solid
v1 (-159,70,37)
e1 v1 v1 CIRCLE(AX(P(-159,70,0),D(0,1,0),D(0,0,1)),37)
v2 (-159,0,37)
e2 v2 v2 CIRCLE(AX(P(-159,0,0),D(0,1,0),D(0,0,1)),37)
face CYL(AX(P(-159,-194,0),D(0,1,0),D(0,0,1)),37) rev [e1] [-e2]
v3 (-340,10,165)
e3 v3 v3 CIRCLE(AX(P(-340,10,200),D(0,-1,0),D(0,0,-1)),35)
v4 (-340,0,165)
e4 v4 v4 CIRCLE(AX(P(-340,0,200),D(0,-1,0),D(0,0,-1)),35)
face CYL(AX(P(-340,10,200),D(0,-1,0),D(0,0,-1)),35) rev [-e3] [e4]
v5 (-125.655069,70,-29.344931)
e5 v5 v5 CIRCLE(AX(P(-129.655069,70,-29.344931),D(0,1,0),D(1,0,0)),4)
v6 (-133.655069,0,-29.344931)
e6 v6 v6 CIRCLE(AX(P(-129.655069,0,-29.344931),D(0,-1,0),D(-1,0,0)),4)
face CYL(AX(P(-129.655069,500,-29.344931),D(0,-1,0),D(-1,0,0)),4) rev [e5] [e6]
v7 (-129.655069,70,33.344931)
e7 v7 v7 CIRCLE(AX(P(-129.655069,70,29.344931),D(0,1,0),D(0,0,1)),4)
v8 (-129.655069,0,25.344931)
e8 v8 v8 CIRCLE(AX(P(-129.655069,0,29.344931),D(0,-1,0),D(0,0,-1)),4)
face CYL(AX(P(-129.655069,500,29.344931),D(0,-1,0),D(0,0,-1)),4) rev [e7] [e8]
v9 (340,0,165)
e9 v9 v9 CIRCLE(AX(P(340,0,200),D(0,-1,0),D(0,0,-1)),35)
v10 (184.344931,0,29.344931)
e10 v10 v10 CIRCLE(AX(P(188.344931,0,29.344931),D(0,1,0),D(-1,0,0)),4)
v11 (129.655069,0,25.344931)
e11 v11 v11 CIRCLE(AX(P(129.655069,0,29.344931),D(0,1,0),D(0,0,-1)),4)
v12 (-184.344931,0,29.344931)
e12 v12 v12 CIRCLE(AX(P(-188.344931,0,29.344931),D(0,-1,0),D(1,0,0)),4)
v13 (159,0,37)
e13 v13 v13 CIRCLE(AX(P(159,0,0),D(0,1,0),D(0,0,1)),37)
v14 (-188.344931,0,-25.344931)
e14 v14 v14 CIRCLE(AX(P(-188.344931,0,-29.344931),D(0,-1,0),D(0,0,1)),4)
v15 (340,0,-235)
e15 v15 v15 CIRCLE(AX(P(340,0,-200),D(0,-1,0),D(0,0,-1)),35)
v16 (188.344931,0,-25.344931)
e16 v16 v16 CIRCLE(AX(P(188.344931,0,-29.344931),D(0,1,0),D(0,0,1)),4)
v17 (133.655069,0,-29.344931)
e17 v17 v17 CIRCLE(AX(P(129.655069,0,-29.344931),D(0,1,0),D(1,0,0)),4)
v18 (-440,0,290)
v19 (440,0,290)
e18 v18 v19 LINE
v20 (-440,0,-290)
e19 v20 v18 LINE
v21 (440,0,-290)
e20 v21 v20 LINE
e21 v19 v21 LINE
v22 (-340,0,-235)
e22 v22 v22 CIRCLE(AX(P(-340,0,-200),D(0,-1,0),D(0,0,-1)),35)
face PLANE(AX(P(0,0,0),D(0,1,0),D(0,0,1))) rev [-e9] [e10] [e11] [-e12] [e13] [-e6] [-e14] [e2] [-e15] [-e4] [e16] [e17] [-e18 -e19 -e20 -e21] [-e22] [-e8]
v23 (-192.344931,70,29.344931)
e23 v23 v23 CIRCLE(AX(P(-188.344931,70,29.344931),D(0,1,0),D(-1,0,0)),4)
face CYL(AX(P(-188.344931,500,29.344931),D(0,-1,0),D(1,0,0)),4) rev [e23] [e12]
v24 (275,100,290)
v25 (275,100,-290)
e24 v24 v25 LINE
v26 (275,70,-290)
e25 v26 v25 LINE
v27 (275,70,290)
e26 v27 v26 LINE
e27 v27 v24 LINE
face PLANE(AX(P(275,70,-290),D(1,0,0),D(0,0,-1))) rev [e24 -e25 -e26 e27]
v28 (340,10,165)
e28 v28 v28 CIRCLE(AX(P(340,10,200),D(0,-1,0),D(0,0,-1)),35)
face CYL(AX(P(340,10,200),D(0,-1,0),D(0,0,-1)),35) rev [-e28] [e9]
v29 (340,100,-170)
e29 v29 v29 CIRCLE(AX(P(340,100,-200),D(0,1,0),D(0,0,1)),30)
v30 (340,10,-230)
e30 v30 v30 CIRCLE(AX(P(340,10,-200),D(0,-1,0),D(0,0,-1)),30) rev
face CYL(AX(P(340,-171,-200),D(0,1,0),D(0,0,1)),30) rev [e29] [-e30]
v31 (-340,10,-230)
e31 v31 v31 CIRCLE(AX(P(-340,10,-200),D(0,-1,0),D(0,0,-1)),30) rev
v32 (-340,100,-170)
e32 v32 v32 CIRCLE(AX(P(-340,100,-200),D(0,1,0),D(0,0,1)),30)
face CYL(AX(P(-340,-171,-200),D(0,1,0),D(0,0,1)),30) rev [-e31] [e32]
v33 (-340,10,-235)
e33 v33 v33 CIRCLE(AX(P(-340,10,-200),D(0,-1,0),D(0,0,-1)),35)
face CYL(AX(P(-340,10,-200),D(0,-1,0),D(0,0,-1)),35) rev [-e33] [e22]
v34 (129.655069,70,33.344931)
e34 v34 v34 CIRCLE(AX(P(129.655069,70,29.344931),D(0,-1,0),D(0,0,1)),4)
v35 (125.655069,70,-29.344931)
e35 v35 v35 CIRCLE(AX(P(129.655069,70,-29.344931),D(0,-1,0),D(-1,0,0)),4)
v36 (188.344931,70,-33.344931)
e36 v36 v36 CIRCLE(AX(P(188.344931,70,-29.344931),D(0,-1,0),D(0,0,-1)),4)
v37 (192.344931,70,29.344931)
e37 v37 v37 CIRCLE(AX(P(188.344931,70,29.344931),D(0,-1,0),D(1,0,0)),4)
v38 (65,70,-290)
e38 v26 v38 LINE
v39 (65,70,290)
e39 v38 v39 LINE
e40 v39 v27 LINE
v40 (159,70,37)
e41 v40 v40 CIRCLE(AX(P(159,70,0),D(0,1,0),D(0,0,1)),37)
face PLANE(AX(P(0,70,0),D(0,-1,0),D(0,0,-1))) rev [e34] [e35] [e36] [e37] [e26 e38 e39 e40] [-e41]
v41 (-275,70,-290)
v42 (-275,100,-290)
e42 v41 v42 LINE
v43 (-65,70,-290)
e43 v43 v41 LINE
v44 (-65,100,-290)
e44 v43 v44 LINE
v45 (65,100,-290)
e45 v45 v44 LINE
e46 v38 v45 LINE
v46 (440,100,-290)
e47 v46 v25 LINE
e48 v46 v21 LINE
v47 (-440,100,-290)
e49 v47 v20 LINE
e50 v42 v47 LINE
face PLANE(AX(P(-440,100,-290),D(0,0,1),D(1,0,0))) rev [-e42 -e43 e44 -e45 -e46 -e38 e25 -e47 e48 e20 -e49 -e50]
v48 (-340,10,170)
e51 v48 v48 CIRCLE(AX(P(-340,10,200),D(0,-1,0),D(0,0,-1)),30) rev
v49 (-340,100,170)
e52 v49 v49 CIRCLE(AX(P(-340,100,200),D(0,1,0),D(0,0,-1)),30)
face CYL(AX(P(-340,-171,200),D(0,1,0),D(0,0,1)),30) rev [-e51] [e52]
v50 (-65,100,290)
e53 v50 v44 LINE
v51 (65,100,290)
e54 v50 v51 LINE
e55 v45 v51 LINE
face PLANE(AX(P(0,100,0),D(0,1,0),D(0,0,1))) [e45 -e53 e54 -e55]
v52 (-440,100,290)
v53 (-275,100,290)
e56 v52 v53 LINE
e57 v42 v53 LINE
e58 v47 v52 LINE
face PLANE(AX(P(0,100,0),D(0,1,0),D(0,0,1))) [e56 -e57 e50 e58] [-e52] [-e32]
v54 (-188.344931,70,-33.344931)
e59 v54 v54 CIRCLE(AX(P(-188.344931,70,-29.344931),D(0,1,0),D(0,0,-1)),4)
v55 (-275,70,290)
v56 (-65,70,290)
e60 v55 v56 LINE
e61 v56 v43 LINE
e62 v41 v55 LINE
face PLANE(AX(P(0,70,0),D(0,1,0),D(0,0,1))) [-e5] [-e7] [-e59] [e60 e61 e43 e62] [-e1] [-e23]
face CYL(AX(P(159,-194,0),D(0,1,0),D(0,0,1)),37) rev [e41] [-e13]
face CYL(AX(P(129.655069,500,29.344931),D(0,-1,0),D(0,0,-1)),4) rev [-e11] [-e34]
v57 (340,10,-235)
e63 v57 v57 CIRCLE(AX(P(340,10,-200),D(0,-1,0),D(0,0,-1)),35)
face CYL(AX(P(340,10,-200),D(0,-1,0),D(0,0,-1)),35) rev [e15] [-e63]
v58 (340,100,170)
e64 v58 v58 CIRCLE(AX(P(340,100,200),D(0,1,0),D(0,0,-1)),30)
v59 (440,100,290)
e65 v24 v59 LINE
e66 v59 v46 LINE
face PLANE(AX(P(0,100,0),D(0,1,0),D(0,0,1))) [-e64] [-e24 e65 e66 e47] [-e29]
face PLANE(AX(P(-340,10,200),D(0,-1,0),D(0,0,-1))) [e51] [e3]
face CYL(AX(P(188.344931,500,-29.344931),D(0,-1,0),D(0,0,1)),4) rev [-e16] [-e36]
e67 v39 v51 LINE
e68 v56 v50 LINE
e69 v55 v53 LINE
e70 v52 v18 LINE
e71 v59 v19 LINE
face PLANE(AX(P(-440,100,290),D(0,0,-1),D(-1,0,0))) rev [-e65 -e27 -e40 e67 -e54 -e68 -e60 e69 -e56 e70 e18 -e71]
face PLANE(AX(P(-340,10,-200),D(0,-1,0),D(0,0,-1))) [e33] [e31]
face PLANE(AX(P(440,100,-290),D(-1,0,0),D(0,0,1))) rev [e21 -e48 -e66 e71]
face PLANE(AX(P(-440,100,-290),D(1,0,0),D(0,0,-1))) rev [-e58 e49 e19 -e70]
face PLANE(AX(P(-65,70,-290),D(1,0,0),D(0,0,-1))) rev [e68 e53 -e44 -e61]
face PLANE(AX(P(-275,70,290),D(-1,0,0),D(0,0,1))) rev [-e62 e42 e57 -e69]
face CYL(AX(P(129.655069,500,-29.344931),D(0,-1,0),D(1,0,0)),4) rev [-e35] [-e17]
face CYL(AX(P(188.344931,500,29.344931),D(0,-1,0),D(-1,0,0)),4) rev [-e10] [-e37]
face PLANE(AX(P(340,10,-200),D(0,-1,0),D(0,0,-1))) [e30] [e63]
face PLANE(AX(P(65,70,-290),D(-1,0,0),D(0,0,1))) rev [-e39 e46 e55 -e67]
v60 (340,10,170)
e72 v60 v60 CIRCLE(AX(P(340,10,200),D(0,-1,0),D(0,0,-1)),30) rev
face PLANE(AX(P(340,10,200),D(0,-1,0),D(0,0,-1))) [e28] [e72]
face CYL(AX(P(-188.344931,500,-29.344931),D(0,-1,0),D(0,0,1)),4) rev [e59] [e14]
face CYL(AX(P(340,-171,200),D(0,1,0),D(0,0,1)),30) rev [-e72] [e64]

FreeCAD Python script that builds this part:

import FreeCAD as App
import Part
import Sketcher

doc = App.newDocument("Part")
body = doc.addObject("PartDesign::Body", "Body")

# Sketch on XZ plane
sketch1 = body.newObject("Sketcher::SketchObject", "Sketch")
sketch1.AttachmentSupport = (doc.getObject("XZ_Plane"), [""])
sketch1.MapMode = "FlatFace"
sketch1.addGeometry([
    Part.LineSegment(App.Vector(-440, -290, 0), App.Vector(-440, 290, 0)),
    Part.LineSegment(App.Vector(-440, 290, 0), App.Vector(440, 290, 0)),
    Part.LineSegment(App.Vector(440, 290, 0), App.Vector(440, -290, 0)),
    Part.LineSegment(App.Vector(440, -290, 0), App.Vector(-440, -290, 0)),
], False)
sketch1.addConstraint([
    Sketcher.Constraint("Coincident", 0, 2, 1, 1),
    Sketcher.Constraint("Coincident", 1, 2, 2, 1),
    Sketcher.Constraint("Coincident", 2, 2, 3, 1),
    Sketcher.Constraint("Coincident", 3, 2, 0, 1),
    Sketcher.Constraint("Vertical", 0),
    Sketcher.Constraint("Horizontal", 1),
    Sketcher.Constraint("Vertical", 2),
    Sketcher.Constraint("Horizontal", 3),
    Sketcher.Constraint("Symmetric", 0, 2, 2, 2, -1, 1),
    Sketcher.Constraint("DistanceX", 1, 1, 1, 2, 880.0),
    Sketcher.Constraint("DistanceY", 0, 1, 0, 2, 580.0),
])
pad1 = body.newObject("PartDesign::Pad", "Pad")
pad1.Profile = sketch1
pad1.Length = 100
pad1.Reversed = True

# Sketch on XZ plane
sketch2 = body.newObject("Sketcher::SketchObject", "Sketch001")
sketch2.AttachmentSupport = (doc.getObject("XZ_Plane"), [""])
sketch2.MapMode = "FlatFace"
sketch2.AttachmentOffset = App.Placement(App.Vector(0, 0, -100), App.Rotation())
sketch2.addGeometry([
    Part.LineSegment(App.Vector(-225, -290, 0), App.Vector(-225, 290, 0)),  # 0
    Part.LineSegment(App.Vector(-225, 290, 0), App.Vector(-65, 290, 0)),  # 1
    Part.LineSegment(App.Vector(-65, 290, 0), App.Vector(-65, -290, 0)),  # 2
    Part.LineSegment(App.Vector(-65, -290, 0), App.Vector(-225, -290, 0)),  # 3
    Part.LineSegment(App.Vector(65, -290, 0), App.Vector(65, 290, 0)),  # 4
    Part.LineSegment(App.Vector(65, 290, 0), App.Vector(225, 290, 0)),  # 5
    Part.LineSegment(App.Vector(225, 290, 0), App.Vector(225, -290, 0)),  # 6
    Part.LineSegment(App.Vector(225, -290, 0), App.Vector(65, -290, 0)),  # 7
], False)
sketch2.addConstraint([
    Sketcher.Constraint("Coincident", 0, 2, 1, 1),
    Sketcher.Constraint("Coincident", 1, 2, 2, 1),
    Sketcher.Constraint("Coincident", 2, 2, 3, 1),
    Sketcher.Constraint("Coincident", 3, 2, 0, 1),
    Sketcher.Constraint("Coincident", 4, 2, 5, 1),
    Sketcher.Constraint("Coincident", 5, 2, 6, 1),
    Sketcher.Constraint("Coincident", 6, 2, 7, 1),
    Sketcher.Constraint("Coincident", 7, 2, 4, 1),
    Sketcher.Constraint("Vertical", 0),
    Sketcher.Constraint("Horizontal", 1),
    Sketcher.Constraint("Vertical", 2),
    Sketcher.Constraint("Horizontal", 3),
    Sketcher.Constraint("Vertical", 4),
    Sketcher.Constraint("Horizontal", 5),
    Sketcher.Constraint("Vertical", 6),
    Sketcher.Constraint("Horizontal", 7),
    Sketcher.Constraint("Symmetric", 2, 2, 4, 2, -1, 1),
    Sketcher.Constraint("Symmetric", 0, 2, 6, 2, -1, 1),
    Sketcher.Constraint("Horizontal", 1, 2, 4, 2),
    Sketcher.Constraint("DistanceX", 1, 1, 1, 2, 160.0),
    Sketcher.Constraint("DistanceY", 0, 1, 0, 2, 580.0),
    Sketcher.Constraint("DistanceX", 0, 2, -1, 1, 225.0),
])
pocket1 = body.newObject("PartDesign::Pocket", "Pocket")
pocket1.Profile = sketch2
pocket1.Length = 30
pocket1.Reversed = True

# Sketch on XZ plane
sketch3 = body.newObject("Sketcher::SketchObject", "Sketch002")
sketch3.AttachmentSupport = (doc.getObject("XZ_Plane"), [""])
sketch3.MapMode = "FlatFace"
sketch3.AttachmentOffset = App.Placement(App.Vector(0, 0, -100), App.Rotation())
sketch3.addGeometry([
    Part.LineSegment(App.Vector(65, -290, 0), App.Vector(65, 290, 0)),  # 0
    Part.LineSegment(App.Vector(65, 290, 0), App.Vector(275, 290, 0)),  # 1
    Part.LineSegment(App.Vector(275, 290, 0), App.Vector(275, -290, 0)),  # 2
    Part.LineSegment(App.Vector(275, -290, 0), App.Vector(65, -290, 0)),  # 3
    Part.LineSegment(App.Vector(-275, -290, 0), App.Vector(-275, 290, 0)),  # 4
    Part.LineSegment(App.Vector(-275, 290, 0), App.Vector(-65, 290, 0)),  # 5
    Part.LineSegment(App.Vector(-65, 290, 0), App.Vector(-65, -290, 0)),  # 6
    Part.LineSegment(App.Vector(-65, -290, 0), App.Vector(-275, -290, 0)),  # 7
], False)
sketch3.addConstraint([
    Sketcher.Constraint("Coincident", 0, 2, 1, 1),
    Sketcher.Constraint("Coincident", 1, 2, 2, 1),
    Sketcher.Constraint("Coincident", 2, 2, 3, 1),
    Sketcher.Constraint("Coincident", 3, 2, 0, 1),
    Sketcher.Constraint("Coincident", 4, 2, 5, 1),
    Sketcher.Constraint("Coincident", 5, 2, 6, 1),
    Sketcher.Constraint("Coincident", 6, 2, 7, 1),
    Sketcher.Constraint("Coincident", 7, 2, 4, 1),
    Sketcher.Constraint("Vertical", 0),
    Sketcher.Constraint("Horizontal", 1),
    Sketcher.Constraint("Vertical", 2),
    Sketcher.Constraint("Horizontal", 3),
    Sketcher.Constraint("Vertical", 4),
    Sketcher.Constraint("Horizontal", 5),
    Sketcher.Constraint("Vertical", 6),
    Sketcher.Constraint("Horizontal", 7),
    Sketcher.Constraint("Symmetric", 2, 2, 4, 2, -1, 1),
    Sketcher.Constraint("Symmetric", 0, 2, 6, 2, -1, 1),
    Sketcher.Constraint("Horizontal", 1, 2, 4, 2),
    Sketcher.Constraint("DistanceX", 1, 1, 1, 2, 210.0),
    Sketcher.Constraint("DistanceY", 0, 1, 0, 2, 580.0),
    Sketcher.Constraint("DistanceX", -1, 1, 0, 2, 65.0),
])
pocket2 = body.newObject("PartDesign::Pocket", "Pocket001")
pocket2.Profile = sketch3
pocket2.Length = 30
pocket2.Reversed = True

# Sketch on XZ plane
sketch4 = body.newObject("Sketcher::SketchObject", "Sketch003")
sketch4.AttachmentSupport = (doc.getObject("XZ_Plane"), [""])
sketch4.MapMode = "FlatFace"
sketch4.AttachmentOffset = App.Placement(App.Vector(0, 0, -70), App.Rotation())
sketch4.addGeometry([
    Part.Circle(App.Vector(-159, 0, 0), App.Vector(0, 0, 1), 37),
    Part.Circle(App.Vector(159, 0, 0), App.Vector(0, 0, 1), 37),
], False)
sketch4.addConstraint([
    Sketcher.Constraint("Equal", 0, 1),
    Sketcher.Constraint("Symmetric", 0, 3, 1, 3, -1, 1),
    Sketcher.Constraint("PointOnObject", 0, 3, -1),
    Sketcher.Constraint("Diameter", 0, 74.0),
    Sketcher.Constraint("DistanceX", 0, 3, -1, 1, 159.0),
])
pocket3 = body.newObject("PartDesign::Pocket", "Pocket002")
pocket3.Profile = sketch4
pocket3.Length = 264
pocket3.Reversed = True

# Sketch on XZ plane
sketch5 = body.newObject("Sketcher::SketchObject", "Sketch004")
sketch5.AttachmentSupport = (doc.getObject("XZ_Plane"), [""])
sketch5.MapMode = "FlatFace"
sketch5.AttachmentOffset = App.Placement(App.Vector(0, 0, -100), App.Rotation())
sketch5.addGeometry([
    Part.Circle(App.Vector(-340, -200, 0), App.Vector(0, 0, 1), 30),
    Part.Circle(App.Vector(340, -200, 0), App.Vector(0, 0, 1), 30),
    Part.Circle(App.Vector(340, 200, 0), App.Vector(0, 0, 1), 30),
    Part.Circle(App.Vector(-340, 200, 0), App.Vector(0, 0, 1), 30),
], False)
sketch5.addConstraint([
    Sketcher.Constraint("Equal", 0, 1),
    Sketcher.Constraint("Equal", 1, 2),
    Sketcher.Constraint("Equal", 2, 3),
    Sketcher.Constraint("Symmetric", 0, 3, 2, 3, -1, 1),
    Sketcher.Constraint("Symmetric", 1, 3, 3, 3, -1, 1),
    Sketcher.Constraint("Symmetric", 0, 3, 1, 3, -2),
    Sketcher.Constraint("Diameter", 0, 60.0),
    Sketcher.Constraint("DistanceX", 0, 3, -1, 1, 340.0),
    Sketcher.Constraint("DistanceY", 0, 3, -1, 1, 200.0),
])
pocket4 = body.newObject("PartDesign::Pocket", "Pocket003")
pocket4.Profile = sketch5
pocket4.Length = 271
pocket4.Reversed = True

# Sketch on XZ plane
sketch6 = body.newObject("Sketcher::SketchObject", "Sketch005")
sketch6.AttachmentSupport = (doc.getObject("XZ_Plane"), [""])
sketch6.MapMode = "FlatFace"
sketch6.addGeometry([
    Part.Circle(App.Vector(-340, 200, 0), App.Vector(0, 0, 1), 35),
    Part.Circle(App.Vector(340, 200, 0), App.Vector(0, 0, 1), 35),
    Part.Circle(App.Vector(-340, -200, 0), App.Vector(0, 0, 1), 35),
    Part.Circle(App.Vector(340, -200, 0), App.Vector(0, 0, 1), 35),
], False)
sketch6.addConstraint([
    Sketcher.Constraint("Equal", 0, 1),
    Sketcher.Constraint("Equal", 1, 2),
    Sketcher.Constraint("Equal", 2, 3),
    Sketcher.Constraint("Symmetric", 1, 3, 2, 3, -1, 1),
    Sketcher.Constraint("Symmetric", 0, 3, 3, 3, -1, 1),
    Sketcher.Constraint("Symmetric", 0, 3, 1, 3, -2),
    Sketcher.Constraint("Diameter", 0, 70.0),
    Sketcher.Constraint("DistanceX", 0, 3, -1, 1, 340.0),
    Sketcher.Constraint("DistanceY", -1, 1, 0, 3, 200.0),
])
pocket5 = body.newObject("PartDesign::Pocket", "Pocket004")
pocket5.Profile = sketch6
pocket5.Length = 10

# Sketch on XZ plane
sketch7 = body.newObject("Sketcher::SketchObject", "Sketch006")
sketch7.AttachmentSupport = (doc.getObject("XZ_Plane"), [""])
sketch7.MapMode = "FlatFace"
sketch7.addGeometry(Part.Circle(App.Vector(-129.655069, 29.344931, 0), App.Vector(0, 0, 1), 4), False)
sketch7.addConstraint([
    Sketcher.Constraint("Diameter", 0, 8.0),
    Sketcher.Constraint("DistanceX", 0, 3, -1, 1, 129.655069),
    Sketcher.Constraint("DistanceY", -1, 1, 0, 3, 29.344931),
])
pocket6 = body.newObject("PartDesign::Pocket", "Pocket005")
pocket6.Profile = sketch7
pocket6.Length = 500
doc.recompute()

datumline = body.newObject("PartDesign::Line", "DatumLine")
datumline.Placement = App.Placement(App.Vector(-159, 0, 0), App.Rotation(App.Vector(0, 0, 1), App.Vector(0, 1, 0)))
polarpattern = body.newObject("PartDesign::PolarPattern", "PolarPattern")
polarpattern.Originals = [pocket6]
polarpattern.Axis = (datumline, [""])
polarpattern.Angle = 360
polarpattern.Occurrences = 4
body.Tip = polarpattern
doc.recompute()

mirrored = body.newObject("PartDesign::Mirrored", "Mirrored")
mirrored.Originals = [pocket6]
mirrored.MirrorPlane = (doc.getObject("YZ_Plane"), [""])
body.Tip = mirrored

# Sketch on XZ plane
sketch8 = body.newObject("Sketcher::SketchObject", "Sketch007")
sketch8.AttachmentSupport = (doc.getObject("XZ_Plane"), [""])
sketch8.MapMode = "FlatFace"
sketch8.addGeometry(Part.Circle(App.Vector(129.655069, -29.344931, 0), App.Vector(0, 0, 1), 4), False)
sketch8.addConstraint([
    Sketcher.Constraint("Diameter", 0, 8.0),
    Sketcher.Constraint("DistanceX", -1, 1, 0, 3, 129.655069),
    Sketcher.Constraint("DistanceY", 0, 3, -1, 1, 29.344931),
])
pocket7 = body.newObject("PartDesign::Pocket", "Pocket006")
pocket7.Profile = sketch8
pocket7.Length = 500

# Sketch on XZ plane
sketch9 = body.newObject("Sketcher::SketchObject", "Sketch008")
sketch9.AttachmentSupport = (doc.getObject("XZ_Plane"), [""])
sketch9.MapMode = "FlatFace"
sketch9.addGeometry(Part.Circle(App.Vector(188.344931, -29.344931, 0), App.Vector(0, 0, 1), 4), False)
sketch9.addConstraint([
    Sketcher.Constraint("Diameter", 0, 8.0),
    Sketcher.Constraint("DistanceX", -1, 1, 0, 3, 188.344931),
    Sketcher.Constraint("DistanceY", 0, 3, -1, 1, 29.344931),
])
pocket8 = body.newObject("PartDesign::Pocket", "Pocket007")
pocket8.Profile = sketch9
pocket8.Length = 500

# Sketch on XZ plane
sketch10 = body.newObject("Sketcher::SketchObject", "Sketch009")
sketch10.AttachmentSupport = (doc.getObject("XZ_Plane"), [""])
sketch10.MapMode = "FlatFace"
sketch10.addGeometry(Part.Circle(App.Vector(188.344931, 29.344931, 0), App.Vector(0, 0, 1), 4), False)
sketch10.addConstraint([
    Sketcher.Constraint("Diameter", 0, 8.0),
    Sketcher.Constraint("DistanceX", -1, 1, 0, 3, 188.344931),
    Sketcher.Constraint("DistanceY", -1, 1, 0, 3, 29.344931),
])
pocket9 = body.newObject("PartDesign::Pocket", "Pocket008")
pocket9.Profile = sketch10
pocket9.Length = 500

doc.recompute()
